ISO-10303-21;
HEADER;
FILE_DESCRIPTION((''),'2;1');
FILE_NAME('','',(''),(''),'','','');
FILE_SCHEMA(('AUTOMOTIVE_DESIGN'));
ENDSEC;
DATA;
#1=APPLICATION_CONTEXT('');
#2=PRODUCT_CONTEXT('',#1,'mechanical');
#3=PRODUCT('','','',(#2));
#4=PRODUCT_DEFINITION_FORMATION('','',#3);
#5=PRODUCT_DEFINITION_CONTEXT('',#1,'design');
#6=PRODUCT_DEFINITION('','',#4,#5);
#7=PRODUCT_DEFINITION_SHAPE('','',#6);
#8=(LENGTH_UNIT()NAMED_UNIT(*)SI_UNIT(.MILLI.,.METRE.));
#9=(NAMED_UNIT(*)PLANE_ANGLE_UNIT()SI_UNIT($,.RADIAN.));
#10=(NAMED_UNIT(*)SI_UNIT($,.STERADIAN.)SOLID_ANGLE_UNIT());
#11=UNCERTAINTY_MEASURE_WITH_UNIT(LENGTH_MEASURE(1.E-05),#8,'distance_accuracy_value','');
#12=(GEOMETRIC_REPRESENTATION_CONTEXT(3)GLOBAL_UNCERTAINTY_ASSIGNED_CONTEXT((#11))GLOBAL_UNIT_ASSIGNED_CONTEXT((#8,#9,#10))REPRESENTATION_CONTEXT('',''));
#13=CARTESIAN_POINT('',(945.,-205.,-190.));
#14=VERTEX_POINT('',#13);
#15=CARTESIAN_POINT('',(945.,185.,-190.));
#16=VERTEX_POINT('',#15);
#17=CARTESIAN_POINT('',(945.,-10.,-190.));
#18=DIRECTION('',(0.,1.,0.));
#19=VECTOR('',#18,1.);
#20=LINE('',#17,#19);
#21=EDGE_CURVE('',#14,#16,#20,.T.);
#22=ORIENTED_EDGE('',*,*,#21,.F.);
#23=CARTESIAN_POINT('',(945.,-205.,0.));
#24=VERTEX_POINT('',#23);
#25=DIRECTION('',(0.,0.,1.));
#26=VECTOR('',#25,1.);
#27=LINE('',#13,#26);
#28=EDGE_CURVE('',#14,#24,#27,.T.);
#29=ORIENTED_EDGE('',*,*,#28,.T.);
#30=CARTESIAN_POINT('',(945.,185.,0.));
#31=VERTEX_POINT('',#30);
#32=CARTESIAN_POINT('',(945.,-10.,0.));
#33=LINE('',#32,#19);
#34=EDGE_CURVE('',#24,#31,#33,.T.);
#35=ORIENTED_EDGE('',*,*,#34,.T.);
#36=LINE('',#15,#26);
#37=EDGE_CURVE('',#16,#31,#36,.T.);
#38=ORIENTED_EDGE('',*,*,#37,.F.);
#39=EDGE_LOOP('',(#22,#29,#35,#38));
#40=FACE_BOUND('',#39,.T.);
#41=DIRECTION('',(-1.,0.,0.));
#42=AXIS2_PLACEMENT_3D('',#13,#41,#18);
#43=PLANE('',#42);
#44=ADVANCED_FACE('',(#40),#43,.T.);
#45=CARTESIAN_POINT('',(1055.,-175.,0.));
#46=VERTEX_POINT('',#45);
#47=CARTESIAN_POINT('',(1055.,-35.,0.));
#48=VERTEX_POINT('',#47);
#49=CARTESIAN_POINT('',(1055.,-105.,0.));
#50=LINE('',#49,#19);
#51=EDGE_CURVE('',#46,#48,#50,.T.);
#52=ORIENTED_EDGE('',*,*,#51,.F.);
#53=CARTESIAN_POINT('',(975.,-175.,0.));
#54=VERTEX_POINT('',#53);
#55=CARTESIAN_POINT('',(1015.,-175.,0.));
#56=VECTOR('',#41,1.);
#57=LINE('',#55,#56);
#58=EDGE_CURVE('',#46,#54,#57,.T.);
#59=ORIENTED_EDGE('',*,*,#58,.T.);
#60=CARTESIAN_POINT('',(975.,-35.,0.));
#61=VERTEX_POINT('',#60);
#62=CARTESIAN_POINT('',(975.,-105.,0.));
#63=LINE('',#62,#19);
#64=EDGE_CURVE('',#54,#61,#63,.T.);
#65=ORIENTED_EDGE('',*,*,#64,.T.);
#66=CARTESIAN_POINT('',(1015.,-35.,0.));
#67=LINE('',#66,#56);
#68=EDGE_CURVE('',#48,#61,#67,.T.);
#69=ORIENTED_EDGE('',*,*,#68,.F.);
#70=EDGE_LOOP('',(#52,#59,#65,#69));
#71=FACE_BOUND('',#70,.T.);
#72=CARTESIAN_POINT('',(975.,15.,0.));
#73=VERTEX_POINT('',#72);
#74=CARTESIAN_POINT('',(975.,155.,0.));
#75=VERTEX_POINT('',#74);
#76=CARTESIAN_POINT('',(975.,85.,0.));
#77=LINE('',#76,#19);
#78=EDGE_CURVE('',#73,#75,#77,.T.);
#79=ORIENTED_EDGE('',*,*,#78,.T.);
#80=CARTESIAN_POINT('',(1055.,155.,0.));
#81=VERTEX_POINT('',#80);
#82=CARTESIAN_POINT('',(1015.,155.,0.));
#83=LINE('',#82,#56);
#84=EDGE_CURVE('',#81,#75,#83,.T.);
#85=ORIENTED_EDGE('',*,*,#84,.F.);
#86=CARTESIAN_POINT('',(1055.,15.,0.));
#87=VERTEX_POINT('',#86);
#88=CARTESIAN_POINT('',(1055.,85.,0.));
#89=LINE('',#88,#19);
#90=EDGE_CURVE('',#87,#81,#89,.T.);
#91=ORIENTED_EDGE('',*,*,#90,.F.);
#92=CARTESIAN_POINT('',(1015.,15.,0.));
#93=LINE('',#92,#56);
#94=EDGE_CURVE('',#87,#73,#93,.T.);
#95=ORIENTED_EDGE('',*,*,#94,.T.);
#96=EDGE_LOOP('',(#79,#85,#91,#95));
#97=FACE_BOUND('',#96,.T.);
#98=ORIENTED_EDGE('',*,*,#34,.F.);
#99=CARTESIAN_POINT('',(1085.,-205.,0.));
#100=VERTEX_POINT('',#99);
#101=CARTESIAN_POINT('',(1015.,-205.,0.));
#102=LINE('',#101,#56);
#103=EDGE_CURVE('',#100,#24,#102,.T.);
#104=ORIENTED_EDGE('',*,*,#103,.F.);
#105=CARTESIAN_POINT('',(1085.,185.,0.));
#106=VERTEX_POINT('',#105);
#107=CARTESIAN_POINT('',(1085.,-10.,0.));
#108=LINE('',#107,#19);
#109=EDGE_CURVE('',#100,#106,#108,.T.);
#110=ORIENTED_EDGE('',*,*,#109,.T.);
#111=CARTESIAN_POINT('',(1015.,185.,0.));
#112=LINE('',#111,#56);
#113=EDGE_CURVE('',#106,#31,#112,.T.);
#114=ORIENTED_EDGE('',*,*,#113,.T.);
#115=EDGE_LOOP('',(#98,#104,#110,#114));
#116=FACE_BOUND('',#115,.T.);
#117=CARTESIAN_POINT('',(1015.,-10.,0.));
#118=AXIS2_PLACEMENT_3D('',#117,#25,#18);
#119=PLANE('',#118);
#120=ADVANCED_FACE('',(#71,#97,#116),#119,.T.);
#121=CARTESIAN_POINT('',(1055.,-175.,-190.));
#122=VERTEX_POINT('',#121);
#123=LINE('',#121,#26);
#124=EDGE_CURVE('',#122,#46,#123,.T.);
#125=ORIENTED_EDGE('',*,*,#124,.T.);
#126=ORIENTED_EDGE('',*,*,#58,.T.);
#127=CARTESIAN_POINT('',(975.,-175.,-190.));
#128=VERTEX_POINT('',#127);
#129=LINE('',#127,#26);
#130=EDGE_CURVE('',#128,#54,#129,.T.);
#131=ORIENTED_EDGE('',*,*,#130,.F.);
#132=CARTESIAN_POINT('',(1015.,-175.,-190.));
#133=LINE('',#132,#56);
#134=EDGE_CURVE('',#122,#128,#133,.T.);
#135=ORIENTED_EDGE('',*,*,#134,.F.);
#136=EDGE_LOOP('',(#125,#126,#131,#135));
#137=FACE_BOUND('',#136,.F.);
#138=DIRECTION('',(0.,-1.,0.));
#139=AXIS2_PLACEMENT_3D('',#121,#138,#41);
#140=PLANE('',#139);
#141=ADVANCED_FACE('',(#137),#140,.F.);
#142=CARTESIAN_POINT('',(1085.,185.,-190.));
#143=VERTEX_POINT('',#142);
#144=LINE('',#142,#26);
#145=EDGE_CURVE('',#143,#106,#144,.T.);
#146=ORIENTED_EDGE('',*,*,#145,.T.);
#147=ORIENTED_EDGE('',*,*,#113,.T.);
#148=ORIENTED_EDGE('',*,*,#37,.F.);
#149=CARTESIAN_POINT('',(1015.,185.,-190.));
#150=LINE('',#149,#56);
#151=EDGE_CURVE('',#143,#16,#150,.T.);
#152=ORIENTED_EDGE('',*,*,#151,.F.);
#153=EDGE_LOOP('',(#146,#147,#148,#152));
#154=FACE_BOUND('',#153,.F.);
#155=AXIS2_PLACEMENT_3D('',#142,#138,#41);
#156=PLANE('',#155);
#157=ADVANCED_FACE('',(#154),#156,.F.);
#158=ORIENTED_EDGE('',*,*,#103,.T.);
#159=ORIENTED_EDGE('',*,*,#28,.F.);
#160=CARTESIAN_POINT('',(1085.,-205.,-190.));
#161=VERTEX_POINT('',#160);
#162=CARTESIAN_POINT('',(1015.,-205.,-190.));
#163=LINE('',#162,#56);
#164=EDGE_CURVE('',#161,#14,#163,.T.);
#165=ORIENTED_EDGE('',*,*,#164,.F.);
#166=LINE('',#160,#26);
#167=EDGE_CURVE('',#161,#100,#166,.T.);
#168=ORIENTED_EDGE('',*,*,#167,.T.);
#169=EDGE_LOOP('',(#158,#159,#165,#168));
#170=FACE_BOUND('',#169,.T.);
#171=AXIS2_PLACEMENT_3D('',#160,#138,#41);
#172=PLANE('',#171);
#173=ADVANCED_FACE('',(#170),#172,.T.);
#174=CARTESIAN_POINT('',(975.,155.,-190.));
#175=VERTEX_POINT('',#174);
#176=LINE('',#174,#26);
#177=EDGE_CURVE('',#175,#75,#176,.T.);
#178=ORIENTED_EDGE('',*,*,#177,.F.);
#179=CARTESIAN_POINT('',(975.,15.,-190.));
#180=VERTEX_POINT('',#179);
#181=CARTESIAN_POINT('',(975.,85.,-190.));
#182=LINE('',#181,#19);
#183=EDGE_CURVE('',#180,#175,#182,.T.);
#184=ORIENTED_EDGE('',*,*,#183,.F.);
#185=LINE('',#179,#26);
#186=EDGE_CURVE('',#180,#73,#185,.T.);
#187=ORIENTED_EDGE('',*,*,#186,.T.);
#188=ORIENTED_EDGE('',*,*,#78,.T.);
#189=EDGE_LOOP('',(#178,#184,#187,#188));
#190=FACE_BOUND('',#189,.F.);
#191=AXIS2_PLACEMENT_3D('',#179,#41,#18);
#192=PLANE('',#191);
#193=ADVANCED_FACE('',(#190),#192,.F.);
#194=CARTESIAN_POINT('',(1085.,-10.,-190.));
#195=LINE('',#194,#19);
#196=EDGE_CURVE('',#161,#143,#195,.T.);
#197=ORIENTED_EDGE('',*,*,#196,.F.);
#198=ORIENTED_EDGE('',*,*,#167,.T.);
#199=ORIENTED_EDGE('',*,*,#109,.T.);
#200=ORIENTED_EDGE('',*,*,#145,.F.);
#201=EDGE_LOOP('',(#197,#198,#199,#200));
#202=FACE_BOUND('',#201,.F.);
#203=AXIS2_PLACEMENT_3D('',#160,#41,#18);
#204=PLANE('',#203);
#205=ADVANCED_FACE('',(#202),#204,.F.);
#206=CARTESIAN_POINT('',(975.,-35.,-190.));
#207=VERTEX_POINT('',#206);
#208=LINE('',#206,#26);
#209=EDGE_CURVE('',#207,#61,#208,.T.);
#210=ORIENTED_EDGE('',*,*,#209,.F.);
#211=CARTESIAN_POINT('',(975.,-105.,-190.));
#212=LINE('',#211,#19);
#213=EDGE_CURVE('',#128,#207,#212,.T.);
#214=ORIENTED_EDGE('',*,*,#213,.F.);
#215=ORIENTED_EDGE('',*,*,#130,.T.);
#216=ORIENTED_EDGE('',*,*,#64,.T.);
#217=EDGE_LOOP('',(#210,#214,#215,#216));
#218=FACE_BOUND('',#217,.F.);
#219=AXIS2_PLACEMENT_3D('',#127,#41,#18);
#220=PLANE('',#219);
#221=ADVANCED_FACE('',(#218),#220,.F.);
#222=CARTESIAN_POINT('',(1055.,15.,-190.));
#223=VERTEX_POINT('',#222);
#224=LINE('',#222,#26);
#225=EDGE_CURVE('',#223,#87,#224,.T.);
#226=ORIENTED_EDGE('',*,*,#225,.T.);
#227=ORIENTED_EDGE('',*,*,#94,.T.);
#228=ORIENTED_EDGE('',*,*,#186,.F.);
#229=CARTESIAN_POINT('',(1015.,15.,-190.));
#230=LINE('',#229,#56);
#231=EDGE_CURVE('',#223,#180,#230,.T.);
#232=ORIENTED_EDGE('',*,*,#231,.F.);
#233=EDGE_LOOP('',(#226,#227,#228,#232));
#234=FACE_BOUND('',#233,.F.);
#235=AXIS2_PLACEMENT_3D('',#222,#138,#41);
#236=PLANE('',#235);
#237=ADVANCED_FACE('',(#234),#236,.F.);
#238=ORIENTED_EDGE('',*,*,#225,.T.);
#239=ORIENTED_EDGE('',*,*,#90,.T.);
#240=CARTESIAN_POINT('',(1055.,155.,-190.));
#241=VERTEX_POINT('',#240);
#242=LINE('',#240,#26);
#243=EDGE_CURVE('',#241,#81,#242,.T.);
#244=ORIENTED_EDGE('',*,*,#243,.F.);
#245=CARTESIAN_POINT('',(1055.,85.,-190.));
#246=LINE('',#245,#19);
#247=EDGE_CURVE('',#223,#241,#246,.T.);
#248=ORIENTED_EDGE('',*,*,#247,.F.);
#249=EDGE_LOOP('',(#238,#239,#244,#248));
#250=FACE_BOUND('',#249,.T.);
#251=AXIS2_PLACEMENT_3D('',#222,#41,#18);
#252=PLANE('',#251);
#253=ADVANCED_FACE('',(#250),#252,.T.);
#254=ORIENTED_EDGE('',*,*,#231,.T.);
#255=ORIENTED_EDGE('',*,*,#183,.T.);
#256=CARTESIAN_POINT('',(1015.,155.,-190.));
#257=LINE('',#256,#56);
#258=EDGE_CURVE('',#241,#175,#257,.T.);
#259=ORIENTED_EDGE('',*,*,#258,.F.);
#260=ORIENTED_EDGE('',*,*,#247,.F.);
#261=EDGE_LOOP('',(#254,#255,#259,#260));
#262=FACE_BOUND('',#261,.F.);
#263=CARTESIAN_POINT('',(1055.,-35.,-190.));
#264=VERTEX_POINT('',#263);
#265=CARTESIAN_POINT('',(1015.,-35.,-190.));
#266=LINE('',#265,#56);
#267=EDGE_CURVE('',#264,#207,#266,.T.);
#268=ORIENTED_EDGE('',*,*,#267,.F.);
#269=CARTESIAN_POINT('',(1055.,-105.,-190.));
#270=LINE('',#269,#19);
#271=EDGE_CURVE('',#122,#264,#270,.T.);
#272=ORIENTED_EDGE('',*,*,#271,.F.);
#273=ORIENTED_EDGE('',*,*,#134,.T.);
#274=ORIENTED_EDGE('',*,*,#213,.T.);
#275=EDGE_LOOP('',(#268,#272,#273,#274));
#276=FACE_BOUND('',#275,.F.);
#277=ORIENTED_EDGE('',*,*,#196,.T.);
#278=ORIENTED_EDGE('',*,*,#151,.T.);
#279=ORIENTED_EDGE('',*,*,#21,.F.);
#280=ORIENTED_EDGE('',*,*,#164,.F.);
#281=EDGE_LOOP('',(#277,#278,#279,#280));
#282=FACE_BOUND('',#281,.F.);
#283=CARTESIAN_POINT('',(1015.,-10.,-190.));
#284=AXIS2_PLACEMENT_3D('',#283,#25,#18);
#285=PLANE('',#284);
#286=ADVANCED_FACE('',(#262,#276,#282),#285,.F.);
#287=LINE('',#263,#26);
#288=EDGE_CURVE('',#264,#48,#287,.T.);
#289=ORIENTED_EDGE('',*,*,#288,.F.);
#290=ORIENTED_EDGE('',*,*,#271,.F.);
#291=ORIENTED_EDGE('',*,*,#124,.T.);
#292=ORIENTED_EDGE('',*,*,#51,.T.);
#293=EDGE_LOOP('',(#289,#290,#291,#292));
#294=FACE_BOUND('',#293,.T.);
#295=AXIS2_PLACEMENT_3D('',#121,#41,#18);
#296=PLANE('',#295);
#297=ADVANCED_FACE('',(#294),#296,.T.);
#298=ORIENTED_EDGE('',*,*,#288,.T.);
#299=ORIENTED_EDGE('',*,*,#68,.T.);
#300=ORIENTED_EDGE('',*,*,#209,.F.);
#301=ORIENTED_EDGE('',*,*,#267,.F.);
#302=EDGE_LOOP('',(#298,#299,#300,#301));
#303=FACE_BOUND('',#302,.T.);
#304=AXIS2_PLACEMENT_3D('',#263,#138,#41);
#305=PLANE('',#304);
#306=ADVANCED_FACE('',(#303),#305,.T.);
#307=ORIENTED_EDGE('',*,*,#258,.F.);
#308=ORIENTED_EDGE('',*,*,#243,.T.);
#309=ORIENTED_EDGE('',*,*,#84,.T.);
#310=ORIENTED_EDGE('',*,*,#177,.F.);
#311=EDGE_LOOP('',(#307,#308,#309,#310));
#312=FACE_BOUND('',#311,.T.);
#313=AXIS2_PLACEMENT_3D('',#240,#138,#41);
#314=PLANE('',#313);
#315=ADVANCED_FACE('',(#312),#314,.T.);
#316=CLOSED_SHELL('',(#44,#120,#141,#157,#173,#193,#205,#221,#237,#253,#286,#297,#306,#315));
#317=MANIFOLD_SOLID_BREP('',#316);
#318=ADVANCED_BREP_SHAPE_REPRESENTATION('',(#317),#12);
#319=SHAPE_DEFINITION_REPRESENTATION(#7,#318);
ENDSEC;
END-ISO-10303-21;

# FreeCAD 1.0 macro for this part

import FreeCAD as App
import Part
import Sketcher

V = App.Vector


def add_polygon(sketch, points):
    """Adds a closed chain of lines whose ends are joined by coincident constraints."""
    first, n = sketch.GeometryCount, len(points)
    for a, b in zip(points, points[1:] + points[:1]):
        sketch.addGeometry(Part.LineSegment(App.Vector(*a, 0), App.Vector(*b, 0)), False)
    for i in range(n):
        sketch.addConstraint(Sketcher.Constraint("Coincident", first + i, 2, first + (i + 1) % n, 1))

doc = App.newDocument("Part")
body = doc.addObject("PartDesign::Body", "Body")

# Sketch on XY plane
sketch1 = body.newObject("Sketcher::SketchObject", "Sketch")
sketch1.AttachmentSupport = (doc.getObject("XY_Plane"), [""])
sketch1.MapMode = "FlatFace"
add_polygon(sketch1, [(220, 110), (220, 30), (360, 30), (360, 110)])  # lines 0-3
sketch1.addConstraint([
    Sketcher.Constraint("Vertical", 0),
    Sketcher.Constraint("Horizontal", 1),
    Sketcher.Constraint("Vertical", 2),
    Sketcher.Constraint("Horizontal", 3),
    Sketcher.Constraint("DistanceX", 1, 1, 1, 2, 140.0),
    Sketcher.Constraint("DistanceY", 0, 2, 0, 1, 80.0),
    Sketcher.Constraint("DistanceX", -1, 1, 0, 2, 220.0),
    Sketcher.Constraint("DistanceY", -1, 1, 0, 2, 30.0),
])
pad1 = body.newObject("PartDesign::Pad", "Pad")
pad1.Profile = sketch1
pad1.Length = 190
body2 = doc.addObject("PartDesign::Body", "Body001")
body2.AllowCompound = True

# Sketch on XY plane
sketch2 = body2.newObject("Sketcher::SketchObject", "Sketch001")
sketch2.AttachmentSupport = (doc.getObject("XY_Plane001"), [""])
sketch2.MapMode = "FlatFace"
add_polygon(sketch2, [(30, 110), (30, 30), (170, 30), (170, 110)])  # lines 0-3
sketch2.addConstraint([
    Sketcher.Constraint("Vertical", 0),
    Sketcher.Constraint("Horizontal", 1),
    Sketcher.Constraint("Vertical", 2),
    Sketcher.Constraint("Horizontal", 3),
    Sketcher.Constraint("DistanceX", 1, 1, 1, 2, 140.0),
    Sketcher.Constraint("DistanceY", 0, 2, 0, 1, 80.0),
    Sketcher.Constraint("DistanceX", -1, 1, 0, 2, 30.0),
    Sketcher.Constraint("DistanceY", -1, 1, 0, 2, 30.0),
])
pad2 = body2.newObject("PartDesign::Pad", "Pad001")
pad2.Profile = sketch2
pad2.Length = 190
doc.recompute()

boolean = body2.newObject("PartDesign::Boolean", "Boolean")
boolean.Type = "Fuse"
boolean.addObjects([body])
body3 = doc.addObject("PartDesign::Body", "Body002")

# Sketch on XY plane
sketch3 = body3.newObject("Sketcher::SketchObject", "Sketch002")
sketch3.AttachmentSupport = (doc.getObject("XY_Plane002"), [""])
sketch3.MapMode = "FlatFace"
add_polygon(sketch3, [(0, 140), (0, 0), (390, 0), (390, 140)])  # lines 0-3
sketch3.addConstraint([
    Sketcher.Constraint("Vertical", 0),
    Sketcher.Constraint("Horizontal", 1),
    Sketcher.Constraint("Vertical", 2),
    Sketcher.Constraint("Horizontal", 3),
    Sketcher.Constraint("Coincident", 0, 2, -1, 1),
    Sketcher.Constraint("DistanceX", 1, 1, 1, 2, 390.0),
    Sketcher.Constraint("DistanceY", 0, 2, 0, 1, 140.0),
])
pad3 = body3.newObject("PartDesign::Pad", "Pad002")
pad3.Profile = sketch3
pad3.Length = 190
doc.recompute()

boolean2 = body3.newObject("PartDesign::Boolean", "Boolean001")
boolean2.Type = "Cut"
boolean2.addObjects([body2])
body4 = doc.addObject("PartDesign::Body", "Body003")
doc.recompute()

body3.Placement = App.Placement(V(1085, -205, -190), App.Rotation(V(0, 0, 1), 90))
boolean3 = body4.newObject("PartDesign::Boolean", "Boolean002")
boolean3.Type = "Fuse"
boolean3.addObjects([body3])

doc.recompute()
